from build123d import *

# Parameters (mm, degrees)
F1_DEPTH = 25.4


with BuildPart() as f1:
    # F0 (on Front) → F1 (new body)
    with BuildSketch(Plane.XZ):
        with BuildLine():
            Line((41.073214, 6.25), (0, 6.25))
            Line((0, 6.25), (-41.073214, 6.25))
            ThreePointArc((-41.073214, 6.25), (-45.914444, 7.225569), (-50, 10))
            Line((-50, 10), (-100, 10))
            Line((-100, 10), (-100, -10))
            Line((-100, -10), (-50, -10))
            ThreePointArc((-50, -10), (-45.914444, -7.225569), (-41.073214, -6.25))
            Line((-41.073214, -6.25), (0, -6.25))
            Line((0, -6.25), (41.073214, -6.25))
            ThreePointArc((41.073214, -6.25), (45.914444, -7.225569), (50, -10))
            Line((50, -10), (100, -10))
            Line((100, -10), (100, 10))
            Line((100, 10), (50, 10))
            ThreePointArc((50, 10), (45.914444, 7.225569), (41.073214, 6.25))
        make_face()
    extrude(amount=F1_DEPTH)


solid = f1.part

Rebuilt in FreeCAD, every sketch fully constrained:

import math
import FreeCAD as App
import Part
import Sketcher

doc = App.newDocument("Part")
body = doc.addObject("PartDesign::Body", "Body")

sketch1 = body.newObject("Sketcher::SketchObject", "Sketch")
sketch1.AttachmentSupport = (doc.getObject("XZ_Plane"), [""])
sketch1.MapMode = "FlatFace"
sketch1.addGeometry(Part.LineSegment(App.Vector(41, 6, 0), App.Vector(-41, 6, 0)), False)
sketch1.addGeometry(Part.ArcOfCircle(Part.Circle(App.Vector(-41, 19, 0), App.Vector(0, 0, 1), 12), math.radians(-136), math.radians(-90)), False)
sketch1.addGeometry(Part.LineSegment(App.Vector(-50, 10, 0), App.Vector(-100, 10, 0)), False)
sketch1.addGeometry(Part.LineSegment(App.Vector(-100, 10, 0), App.Vector(-100, -10, 0)), False)
sketch1.addGeometry(Part.LineSegment(App.Vector(-100, -10, 0), App.Vector(-50, -10, 0)), False)
sketch1.addGeometry(Part.ArcOfCircle(Part.Circle(App.Vector(-41, -19, 0), App.Vector(0, 0, 1), 12), math.radians(90), math.radians(136)), False)
sketch1.addGeometry(Part.LineSegment(App.Vector(-41, -6, 0), App.Vector(41, -6, 0)), False)
sketch1.addGeometry(Part.ArcOfCircle(Part.Circle(App.Vector(41, -19, 0), App.Vector(0, 0, 1), 12), math.radians(44), math.radians(90)), False)
sketch1.addGeometry(Part.LineSegment(App.Vector(50, -10, 0), App.Vector(100, -10, 0)), False)
sketch1.addGeometry(Part.LineSegment(App.Vector(100, -10, 0), App.Vector(100, 10, 0)), False)
sketch1.addGeometry(Part.LineSegment(App.Vector(100, 10, 0), App.Vector(50, 10, 0)), False)
sketch1.addGeometry(Part.ArcOfCircle(Part.Circle(App.Vector(41, 19, 0), App.Vector(0, 0, 1), 12), math.radians(-90), math.radians(-44)), False)
sketch1.addConstraint(Sketcher.Constraint("Tangent", 0, 2, 1, 2))
sketch1.addConstraint(Sketcher.Constraint("Coincident", 1, 1, 2, 1))
sketch1.addConstraint(Sketcher.Constraint("Coincident", 2, 2, 3, 1))
sketch1.addConstraint(Sketcher.Constraint("Coincident", 3, 2, 4, 1))
sketch1.addConstraint(Sketcher.Constraint("Coincident", 4, 2, 5, 2))
sketch1.addConstraint(Sketcher.Constraint("Tangent", 5, 1, 6, 1))
sketch1.addConstraint(Sketcher.Constraint("Tangent", 6, 2, 7, 2))
sketch1.addConstraint(Sketcher.Constraint("Coincident", 7, 1, 8, 1))
sketch1.addConstraint(Sketcher.Constraint("Coincident", 8, 2, 9, 1))
sketch1.addConstraint(Sketcher.Constraint("Coincident", 9, 2, 10, 1))
sketch1.addConstraint(Sketcher.Constraint("Coincident", 10, 2, 11, 2))
sketch1.addConstraint(Sketcher.Constraint("Tangent", 11, 1, 0, 1))
sketch1.addConstraint(Sketcher.Constraint("Horizontal", 0))
sketch1.addConstraint(Sketcher.Constraint("Horizontal", 2))
sketch1.addConstraint(Sketcher.Constraint("Vertical", 3))
sketch1.addConstraint(Sketcher.Constraint("Horizontal", 4))
sketch1.addConstraint(Sketcher.Constraint("Horizontal", 6))
sketch1.addConstraint(Sketcher.Constraint("Horizontal", 8))
sketch1.addConstraint(Sketcher.Constraint("Vertical", 9))
sketch1.addConstraint(Sketcher.Constraint("Horizontal", 10))
sketch1.addConstraint(Sketcher.Constraint("Equal", 1, 5))
sketch1.addConstraint(Sketcher.Constraint("Equal", 5, 7))
sketch1.addConstraint(Sketcher.Constraint("Equal", 7, 11))
sketch1.addConstraint(Sketcher.Constraint("Symmetric", 1, 3, 7, 3, -1, 1))
sketch1.addConstraint(Sketcher.Constraint("Symmetric", 2, 2, 8, 2, -1, 1))
sketch1.addConstraint(Sketcher.Constraint("Symmetric", 4, 2, 10, 2, -1, 1))
sketch1.addConstraint(Sketcher.Constraint("Symmetric", 4, 2, 7, 1, -2))
sketch1.addConstraint(Sketcher.Constraint("DistanceX", 2, 2, 2, 1, 50.0))
sketch1.addConstraint(Sketcher.Constraint("DistanceY", 3, 2, 3, 1, 20.0))
sketch1.addConstraint(Sketcher.Constraint("DistanceX", 1, 1, -1, 1, 50.0))
sketch1.addConstraint(Sketcher.Constraint("DistanceY", 5, 1, 0, 2, 12.5))
sketch1.addConstraint(Sketcher.Constraint("Radius", 1, 12.499994))
pad1 = body.newObject("PartDesign::Pad", "Pad")
pad1.Profile = sketch1
pad1.Length = 25.4

doc.recompute()
